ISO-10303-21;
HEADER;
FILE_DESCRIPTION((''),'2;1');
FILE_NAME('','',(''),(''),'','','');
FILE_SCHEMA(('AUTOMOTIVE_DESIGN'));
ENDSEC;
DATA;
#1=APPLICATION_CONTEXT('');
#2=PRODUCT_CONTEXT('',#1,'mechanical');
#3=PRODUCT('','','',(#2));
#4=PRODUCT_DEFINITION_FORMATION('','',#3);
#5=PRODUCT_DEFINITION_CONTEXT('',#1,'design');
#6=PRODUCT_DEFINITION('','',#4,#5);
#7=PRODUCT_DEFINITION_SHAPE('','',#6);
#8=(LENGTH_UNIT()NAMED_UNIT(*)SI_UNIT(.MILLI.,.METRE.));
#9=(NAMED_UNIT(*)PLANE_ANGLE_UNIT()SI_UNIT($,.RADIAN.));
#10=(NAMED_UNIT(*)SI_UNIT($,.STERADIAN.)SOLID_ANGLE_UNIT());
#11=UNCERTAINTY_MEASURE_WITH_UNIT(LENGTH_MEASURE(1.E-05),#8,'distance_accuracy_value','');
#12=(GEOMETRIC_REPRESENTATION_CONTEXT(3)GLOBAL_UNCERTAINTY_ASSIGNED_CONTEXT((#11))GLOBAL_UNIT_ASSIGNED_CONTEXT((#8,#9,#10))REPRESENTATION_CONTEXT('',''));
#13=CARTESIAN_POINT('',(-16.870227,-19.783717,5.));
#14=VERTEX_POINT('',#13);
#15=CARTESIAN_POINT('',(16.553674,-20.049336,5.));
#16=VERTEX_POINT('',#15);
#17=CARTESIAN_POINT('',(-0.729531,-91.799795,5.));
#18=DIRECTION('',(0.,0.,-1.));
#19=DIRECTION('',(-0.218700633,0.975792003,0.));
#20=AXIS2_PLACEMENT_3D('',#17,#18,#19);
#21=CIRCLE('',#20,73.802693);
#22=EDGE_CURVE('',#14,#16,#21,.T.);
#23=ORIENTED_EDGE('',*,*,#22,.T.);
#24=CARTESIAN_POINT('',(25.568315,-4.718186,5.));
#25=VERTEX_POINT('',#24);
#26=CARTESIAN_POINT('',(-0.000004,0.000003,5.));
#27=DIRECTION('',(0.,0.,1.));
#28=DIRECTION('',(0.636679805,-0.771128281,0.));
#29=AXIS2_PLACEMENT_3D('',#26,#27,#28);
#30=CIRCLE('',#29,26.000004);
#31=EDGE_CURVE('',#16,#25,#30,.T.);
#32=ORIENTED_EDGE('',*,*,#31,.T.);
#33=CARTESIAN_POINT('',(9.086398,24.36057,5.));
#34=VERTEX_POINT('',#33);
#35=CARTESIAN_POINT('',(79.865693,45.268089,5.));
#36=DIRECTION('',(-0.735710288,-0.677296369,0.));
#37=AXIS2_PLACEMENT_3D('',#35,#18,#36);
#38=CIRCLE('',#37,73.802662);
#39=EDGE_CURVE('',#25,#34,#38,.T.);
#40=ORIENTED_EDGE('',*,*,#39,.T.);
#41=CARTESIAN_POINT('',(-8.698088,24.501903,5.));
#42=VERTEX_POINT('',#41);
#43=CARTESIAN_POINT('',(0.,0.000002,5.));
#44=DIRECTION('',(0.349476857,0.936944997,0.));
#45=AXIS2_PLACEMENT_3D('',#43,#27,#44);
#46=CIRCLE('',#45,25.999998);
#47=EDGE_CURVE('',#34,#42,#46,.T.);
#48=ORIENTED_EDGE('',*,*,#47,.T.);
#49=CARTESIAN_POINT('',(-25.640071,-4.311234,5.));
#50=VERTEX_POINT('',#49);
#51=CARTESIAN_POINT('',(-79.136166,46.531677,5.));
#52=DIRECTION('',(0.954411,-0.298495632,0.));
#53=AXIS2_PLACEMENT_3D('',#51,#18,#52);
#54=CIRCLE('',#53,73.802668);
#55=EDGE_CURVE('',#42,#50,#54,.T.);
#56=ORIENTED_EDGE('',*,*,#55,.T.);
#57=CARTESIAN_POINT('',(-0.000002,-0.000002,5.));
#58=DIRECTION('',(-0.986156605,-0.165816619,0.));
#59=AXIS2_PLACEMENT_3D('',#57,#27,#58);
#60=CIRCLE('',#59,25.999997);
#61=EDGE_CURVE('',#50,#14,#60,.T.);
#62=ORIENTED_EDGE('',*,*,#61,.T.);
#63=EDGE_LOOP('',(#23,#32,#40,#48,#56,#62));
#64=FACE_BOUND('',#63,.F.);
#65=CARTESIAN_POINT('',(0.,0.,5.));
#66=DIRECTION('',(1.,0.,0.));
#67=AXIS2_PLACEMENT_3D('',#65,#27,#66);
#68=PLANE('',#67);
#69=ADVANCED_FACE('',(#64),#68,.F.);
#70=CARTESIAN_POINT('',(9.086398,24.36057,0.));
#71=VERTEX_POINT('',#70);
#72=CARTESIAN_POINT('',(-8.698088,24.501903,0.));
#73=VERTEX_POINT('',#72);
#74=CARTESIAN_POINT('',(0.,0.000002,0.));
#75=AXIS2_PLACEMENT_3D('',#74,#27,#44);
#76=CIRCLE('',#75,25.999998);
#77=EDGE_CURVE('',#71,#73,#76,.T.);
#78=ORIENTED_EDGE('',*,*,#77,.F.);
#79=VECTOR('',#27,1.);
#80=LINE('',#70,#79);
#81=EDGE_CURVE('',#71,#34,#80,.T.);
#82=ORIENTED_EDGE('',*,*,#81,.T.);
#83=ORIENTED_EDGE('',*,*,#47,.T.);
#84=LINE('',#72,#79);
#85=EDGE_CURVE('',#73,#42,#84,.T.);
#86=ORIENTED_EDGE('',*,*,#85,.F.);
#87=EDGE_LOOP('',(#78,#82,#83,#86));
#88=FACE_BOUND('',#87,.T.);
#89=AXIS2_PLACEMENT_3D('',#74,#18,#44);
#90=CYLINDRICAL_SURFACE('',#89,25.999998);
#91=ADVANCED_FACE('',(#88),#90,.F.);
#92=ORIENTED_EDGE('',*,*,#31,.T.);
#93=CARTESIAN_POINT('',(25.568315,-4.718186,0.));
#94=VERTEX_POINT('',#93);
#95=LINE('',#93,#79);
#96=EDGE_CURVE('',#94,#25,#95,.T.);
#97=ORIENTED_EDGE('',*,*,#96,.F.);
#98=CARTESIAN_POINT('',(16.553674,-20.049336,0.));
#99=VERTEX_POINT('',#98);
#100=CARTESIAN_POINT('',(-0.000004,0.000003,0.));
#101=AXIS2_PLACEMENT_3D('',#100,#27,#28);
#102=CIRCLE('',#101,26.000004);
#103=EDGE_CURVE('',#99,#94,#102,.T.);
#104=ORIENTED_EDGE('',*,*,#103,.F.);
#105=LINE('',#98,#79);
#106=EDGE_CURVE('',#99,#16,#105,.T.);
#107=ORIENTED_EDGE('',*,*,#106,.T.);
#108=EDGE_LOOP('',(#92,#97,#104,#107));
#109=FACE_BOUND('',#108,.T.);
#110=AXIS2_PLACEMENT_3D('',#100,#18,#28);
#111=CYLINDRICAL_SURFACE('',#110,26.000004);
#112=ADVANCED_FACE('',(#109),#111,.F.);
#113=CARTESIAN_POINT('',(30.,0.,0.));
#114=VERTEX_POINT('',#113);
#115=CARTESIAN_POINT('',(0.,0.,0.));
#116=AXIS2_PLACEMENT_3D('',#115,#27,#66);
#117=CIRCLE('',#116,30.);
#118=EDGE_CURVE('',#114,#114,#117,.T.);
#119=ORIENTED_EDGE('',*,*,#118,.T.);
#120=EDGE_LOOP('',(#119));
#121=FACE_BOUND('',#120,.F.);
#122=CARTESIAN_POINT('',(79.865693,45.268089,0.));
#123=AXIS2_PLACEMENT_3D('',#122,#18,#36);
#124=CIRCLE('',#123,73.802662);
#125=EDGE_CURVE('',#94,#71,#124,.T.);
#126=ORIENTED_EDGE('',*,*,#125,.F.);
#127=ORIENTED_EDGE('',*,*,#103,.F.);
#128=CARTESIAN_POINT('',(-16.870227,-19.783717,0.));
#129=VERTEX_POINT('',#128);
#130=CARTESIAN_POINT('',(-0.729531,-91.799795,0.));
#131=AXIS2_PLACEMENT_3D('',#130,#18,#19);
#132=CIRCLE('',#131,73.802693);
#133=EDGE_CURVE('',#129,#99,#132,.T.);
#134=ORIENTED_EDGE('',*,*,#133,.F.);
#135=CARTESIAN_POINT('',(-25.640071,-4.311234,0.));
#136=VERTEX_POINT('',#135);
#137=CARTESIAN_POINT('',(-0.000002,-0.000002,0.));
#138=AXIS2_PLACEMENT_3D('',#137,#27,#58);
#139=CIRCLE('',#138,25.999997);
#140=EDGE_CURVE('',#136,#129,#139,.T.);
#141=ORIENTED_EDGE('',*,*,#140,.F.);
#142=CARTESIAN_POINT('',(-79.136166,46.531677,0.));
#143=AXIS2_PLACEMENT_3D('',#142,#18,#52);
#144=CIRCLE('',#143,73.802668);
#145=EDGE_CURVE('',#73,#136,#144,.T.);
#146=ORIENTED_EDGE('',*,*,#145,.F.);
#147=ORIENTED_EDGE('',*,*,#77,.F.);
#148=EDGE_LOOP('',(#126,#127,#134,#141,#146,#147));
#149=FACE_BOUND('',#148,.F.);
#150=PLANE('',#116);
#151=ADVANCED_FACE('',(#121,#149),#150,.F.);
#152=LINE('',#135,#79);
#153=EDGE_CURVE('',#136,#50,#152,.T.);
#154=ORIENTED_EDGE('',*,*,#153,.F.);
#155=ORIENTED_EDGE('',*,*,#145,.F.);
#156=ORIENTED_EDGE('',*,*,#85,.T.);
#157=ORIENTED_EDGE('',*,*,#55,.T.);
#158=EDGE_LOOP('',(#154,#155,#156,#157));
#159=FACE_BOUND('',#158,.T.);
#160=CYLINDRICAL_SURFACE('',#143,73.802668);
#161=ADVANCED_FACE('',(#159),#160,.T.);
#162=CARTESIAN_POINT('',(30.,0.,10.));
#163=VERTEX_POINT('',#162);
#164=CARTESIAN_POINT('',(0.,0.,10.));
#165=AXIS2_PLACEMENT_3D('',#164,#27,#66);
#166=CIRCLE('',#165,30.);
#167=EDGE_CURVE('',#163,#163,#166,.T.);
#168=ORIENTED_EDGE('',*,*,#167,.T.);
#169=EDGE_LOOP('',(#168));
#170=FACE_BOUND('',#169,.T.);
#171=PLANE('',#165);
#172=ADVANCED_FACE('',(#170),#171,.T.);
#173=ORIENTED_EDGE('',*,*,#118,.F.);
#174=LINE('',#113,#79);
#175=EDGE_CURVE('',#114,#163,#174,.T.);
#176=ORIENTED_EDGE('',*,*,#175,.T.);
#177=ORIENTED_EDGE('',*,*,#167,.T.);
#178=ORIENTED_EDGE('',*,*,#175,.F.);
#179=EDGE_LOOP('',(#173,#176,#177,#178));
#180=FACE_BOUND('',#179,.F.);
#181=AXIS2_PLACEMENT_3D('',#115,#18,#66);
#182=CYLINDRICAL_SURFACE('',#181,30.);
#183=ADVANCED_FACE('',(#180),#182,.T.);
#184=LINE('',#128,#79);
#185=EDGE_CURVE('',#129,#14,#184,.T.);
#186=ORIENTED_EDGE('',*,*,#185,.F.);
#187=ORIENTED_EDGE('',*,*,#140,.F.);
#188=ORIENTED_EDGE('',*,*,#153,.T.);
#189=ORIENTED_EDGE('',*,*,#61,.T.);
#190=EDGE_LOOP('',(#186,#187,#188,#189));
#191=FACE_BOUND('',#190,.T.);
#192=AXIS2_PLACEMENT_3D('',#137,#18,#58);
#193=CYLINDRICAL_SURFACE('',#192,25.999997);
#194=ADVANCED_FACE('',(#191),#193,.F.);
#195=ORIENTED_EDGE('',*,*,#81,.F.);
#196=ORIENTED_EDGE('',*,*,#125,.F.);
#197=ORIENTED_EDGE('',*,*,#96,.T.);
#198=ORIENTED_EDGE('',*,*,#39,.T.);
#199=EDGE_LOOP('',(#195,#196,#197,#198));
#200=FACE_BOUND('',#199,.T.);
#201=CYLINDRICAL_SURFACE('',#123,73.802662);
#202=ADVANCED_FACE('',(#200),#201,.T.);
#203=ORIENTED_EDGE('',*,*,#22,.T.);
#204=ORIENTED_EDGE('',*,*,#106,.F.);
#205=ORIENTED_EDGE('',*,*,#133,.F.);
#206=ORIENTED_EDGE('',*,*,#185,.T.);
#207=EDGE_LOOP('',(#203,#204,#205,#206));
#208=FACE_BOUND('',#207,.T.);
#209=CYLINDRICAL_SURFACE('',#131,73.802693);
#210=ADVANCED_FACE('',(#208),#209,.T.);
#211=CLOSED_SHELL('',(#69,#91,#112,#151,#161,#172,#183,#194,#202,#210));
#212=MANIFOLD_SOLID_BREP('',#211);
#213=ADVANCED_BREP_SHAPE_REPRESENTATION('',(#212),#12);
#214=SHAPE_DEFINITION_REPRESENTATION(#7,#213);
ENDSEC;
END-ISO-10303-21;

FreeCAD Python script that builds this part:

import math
import FreeCAD as App
import Part
import Sketcher
from FreeCAD import Vector
Q = App.Units.Quantity

doc = App.newDocument("Part")
body = doc.addObject("PartDesign::Body", "Body")

sketch1 = body.newObject("Sketcher::SketchObject", "Sketch")
sketch1.AttachmentSupport = (doc.getObject("XY_Plane"), [""])
sketch1.MapMode = "FlatFace"
sketch1.addGeometry(Part.Circle(Vector(0, 0, 0), Vector(0, 0, 1), 30), False)
sketch1.addConstraint([
    Sketcher.Constraint("Coincident", 0, 3, -1, 1),
    Sketcher.Constraint("Diameter", 0, Q("60 mm")),
])
pad1 = body.newObject("PartDesign::Pad", "Pad")
pad1.Profile = sketch1
pad1.Length = 10

sketch2 = body.newObject("Sketcher::SketchObject", "Sketch001")
sketch2.AttachmentSupport = (doc.getObject("XY_Plane"), [""])
sketch2.MapMode = "FlatFace"
sketch2.addGeometry([
    Part.ArcOfCircle(Part.Circle(Vector(80, 45, 0), Vector(0, 0, 1), 74), math.radians(-164), math.radians(-137)),
    Part.ArcOfCircle(Part.Circle(Vector(0, 0, 0), Vector(0, 0, 1), 26), math.radians(70), math.radians(110)),
    Part.ArcOfCircle(Part.Circle(Vector(-79, 47, 0), Vector(0, 0, 1), 74), math.radians(-44), math.radians(-17)),
    Part.ArcOfCircle(Part.Circle(Vector(0, 0, 0), Vector(0, 0, 1), 26), math.radians(-170), math.radians(-130)),
    Part.ArcOfCircle(Part.Circle(Vector(-1, -92, 0), Vector(0, 0, 1), 74), math.radians(76), math.radians(103)),
    Part.ArcOfCircle(Part.Circle(Vector(0, 0, 0), Vector(0, 0, 1), 26), math.radians(-50), math.radians(-10)),
], False)
sketch2.addConstraint([
    Sketcher.Constraint("Coincident", 0, 1, 1, 1),
    Sketcher.Constraint("Coincident", 1, 2, 2, 2),
    Sketcher.Constraint("Coincident", 2, 1, 3, 1),
    Sketcher.Constraint("Coincident", 3, 2, 4, 2),
    Sketcher.Constraint("Coincident", 4, 1, 5, 1),
    Sketcher.Constraint("Coincident", 5, 2, 0, 2),
    Sketcher.Constraint("Coincident", 1, 3, -1, 1),
    Sketcher.Constraint("Coincident", 3, 3, -1, 1),
    Sketcher.Constraint("Coincident", 5, 3, -1, 1),
    Sketcher.Constraint("Equal", 1, 3),
    Sketcher.Constraint("Radius", 1, Q("25.999998 mm")),
    Sketcher.Constraint("Radius", 0, Q("73.802662 mm")),
    Sketcher.Constraint("Radius", 2, Q("73.802668 mm")),
    Sketcher.Constraint("Radius", 4, Q("73.802693 mm")),
    Sketcher.Constraint("Radius", 5, Q("26.000004 mm")),
    Sketcher.Constraint("DistanceX", -1, 1, 0, 1, Q("9.086398 mm")),
    Sketcher.Constraint("DistanceY", 5, 3, 1, 2, Q("24.5019 mm")),
    Sketcher.Constraint("DistanceX", 3, 2, 4, 1, Q("33.423901 mm")),
    Sketcher.Constraint("DistanceY", -1, 1, 0, 3, Q("45.268089 mm")),
    Sketcher.Constraint("DistanceX", 4, 3, -1, 1, Q("0.729531 mm")),
    Sketcher.Constraint("DistanceX", 2, 3, 0, 3, Q("159.001859 mm")),
])
pocket1 = body.newObject("PartDesign::Pocket", "Pocket")
pocket1.Profile = sketch2
pocket1.Length = 5
pocket1.Reversed = True

doc.recompute()
